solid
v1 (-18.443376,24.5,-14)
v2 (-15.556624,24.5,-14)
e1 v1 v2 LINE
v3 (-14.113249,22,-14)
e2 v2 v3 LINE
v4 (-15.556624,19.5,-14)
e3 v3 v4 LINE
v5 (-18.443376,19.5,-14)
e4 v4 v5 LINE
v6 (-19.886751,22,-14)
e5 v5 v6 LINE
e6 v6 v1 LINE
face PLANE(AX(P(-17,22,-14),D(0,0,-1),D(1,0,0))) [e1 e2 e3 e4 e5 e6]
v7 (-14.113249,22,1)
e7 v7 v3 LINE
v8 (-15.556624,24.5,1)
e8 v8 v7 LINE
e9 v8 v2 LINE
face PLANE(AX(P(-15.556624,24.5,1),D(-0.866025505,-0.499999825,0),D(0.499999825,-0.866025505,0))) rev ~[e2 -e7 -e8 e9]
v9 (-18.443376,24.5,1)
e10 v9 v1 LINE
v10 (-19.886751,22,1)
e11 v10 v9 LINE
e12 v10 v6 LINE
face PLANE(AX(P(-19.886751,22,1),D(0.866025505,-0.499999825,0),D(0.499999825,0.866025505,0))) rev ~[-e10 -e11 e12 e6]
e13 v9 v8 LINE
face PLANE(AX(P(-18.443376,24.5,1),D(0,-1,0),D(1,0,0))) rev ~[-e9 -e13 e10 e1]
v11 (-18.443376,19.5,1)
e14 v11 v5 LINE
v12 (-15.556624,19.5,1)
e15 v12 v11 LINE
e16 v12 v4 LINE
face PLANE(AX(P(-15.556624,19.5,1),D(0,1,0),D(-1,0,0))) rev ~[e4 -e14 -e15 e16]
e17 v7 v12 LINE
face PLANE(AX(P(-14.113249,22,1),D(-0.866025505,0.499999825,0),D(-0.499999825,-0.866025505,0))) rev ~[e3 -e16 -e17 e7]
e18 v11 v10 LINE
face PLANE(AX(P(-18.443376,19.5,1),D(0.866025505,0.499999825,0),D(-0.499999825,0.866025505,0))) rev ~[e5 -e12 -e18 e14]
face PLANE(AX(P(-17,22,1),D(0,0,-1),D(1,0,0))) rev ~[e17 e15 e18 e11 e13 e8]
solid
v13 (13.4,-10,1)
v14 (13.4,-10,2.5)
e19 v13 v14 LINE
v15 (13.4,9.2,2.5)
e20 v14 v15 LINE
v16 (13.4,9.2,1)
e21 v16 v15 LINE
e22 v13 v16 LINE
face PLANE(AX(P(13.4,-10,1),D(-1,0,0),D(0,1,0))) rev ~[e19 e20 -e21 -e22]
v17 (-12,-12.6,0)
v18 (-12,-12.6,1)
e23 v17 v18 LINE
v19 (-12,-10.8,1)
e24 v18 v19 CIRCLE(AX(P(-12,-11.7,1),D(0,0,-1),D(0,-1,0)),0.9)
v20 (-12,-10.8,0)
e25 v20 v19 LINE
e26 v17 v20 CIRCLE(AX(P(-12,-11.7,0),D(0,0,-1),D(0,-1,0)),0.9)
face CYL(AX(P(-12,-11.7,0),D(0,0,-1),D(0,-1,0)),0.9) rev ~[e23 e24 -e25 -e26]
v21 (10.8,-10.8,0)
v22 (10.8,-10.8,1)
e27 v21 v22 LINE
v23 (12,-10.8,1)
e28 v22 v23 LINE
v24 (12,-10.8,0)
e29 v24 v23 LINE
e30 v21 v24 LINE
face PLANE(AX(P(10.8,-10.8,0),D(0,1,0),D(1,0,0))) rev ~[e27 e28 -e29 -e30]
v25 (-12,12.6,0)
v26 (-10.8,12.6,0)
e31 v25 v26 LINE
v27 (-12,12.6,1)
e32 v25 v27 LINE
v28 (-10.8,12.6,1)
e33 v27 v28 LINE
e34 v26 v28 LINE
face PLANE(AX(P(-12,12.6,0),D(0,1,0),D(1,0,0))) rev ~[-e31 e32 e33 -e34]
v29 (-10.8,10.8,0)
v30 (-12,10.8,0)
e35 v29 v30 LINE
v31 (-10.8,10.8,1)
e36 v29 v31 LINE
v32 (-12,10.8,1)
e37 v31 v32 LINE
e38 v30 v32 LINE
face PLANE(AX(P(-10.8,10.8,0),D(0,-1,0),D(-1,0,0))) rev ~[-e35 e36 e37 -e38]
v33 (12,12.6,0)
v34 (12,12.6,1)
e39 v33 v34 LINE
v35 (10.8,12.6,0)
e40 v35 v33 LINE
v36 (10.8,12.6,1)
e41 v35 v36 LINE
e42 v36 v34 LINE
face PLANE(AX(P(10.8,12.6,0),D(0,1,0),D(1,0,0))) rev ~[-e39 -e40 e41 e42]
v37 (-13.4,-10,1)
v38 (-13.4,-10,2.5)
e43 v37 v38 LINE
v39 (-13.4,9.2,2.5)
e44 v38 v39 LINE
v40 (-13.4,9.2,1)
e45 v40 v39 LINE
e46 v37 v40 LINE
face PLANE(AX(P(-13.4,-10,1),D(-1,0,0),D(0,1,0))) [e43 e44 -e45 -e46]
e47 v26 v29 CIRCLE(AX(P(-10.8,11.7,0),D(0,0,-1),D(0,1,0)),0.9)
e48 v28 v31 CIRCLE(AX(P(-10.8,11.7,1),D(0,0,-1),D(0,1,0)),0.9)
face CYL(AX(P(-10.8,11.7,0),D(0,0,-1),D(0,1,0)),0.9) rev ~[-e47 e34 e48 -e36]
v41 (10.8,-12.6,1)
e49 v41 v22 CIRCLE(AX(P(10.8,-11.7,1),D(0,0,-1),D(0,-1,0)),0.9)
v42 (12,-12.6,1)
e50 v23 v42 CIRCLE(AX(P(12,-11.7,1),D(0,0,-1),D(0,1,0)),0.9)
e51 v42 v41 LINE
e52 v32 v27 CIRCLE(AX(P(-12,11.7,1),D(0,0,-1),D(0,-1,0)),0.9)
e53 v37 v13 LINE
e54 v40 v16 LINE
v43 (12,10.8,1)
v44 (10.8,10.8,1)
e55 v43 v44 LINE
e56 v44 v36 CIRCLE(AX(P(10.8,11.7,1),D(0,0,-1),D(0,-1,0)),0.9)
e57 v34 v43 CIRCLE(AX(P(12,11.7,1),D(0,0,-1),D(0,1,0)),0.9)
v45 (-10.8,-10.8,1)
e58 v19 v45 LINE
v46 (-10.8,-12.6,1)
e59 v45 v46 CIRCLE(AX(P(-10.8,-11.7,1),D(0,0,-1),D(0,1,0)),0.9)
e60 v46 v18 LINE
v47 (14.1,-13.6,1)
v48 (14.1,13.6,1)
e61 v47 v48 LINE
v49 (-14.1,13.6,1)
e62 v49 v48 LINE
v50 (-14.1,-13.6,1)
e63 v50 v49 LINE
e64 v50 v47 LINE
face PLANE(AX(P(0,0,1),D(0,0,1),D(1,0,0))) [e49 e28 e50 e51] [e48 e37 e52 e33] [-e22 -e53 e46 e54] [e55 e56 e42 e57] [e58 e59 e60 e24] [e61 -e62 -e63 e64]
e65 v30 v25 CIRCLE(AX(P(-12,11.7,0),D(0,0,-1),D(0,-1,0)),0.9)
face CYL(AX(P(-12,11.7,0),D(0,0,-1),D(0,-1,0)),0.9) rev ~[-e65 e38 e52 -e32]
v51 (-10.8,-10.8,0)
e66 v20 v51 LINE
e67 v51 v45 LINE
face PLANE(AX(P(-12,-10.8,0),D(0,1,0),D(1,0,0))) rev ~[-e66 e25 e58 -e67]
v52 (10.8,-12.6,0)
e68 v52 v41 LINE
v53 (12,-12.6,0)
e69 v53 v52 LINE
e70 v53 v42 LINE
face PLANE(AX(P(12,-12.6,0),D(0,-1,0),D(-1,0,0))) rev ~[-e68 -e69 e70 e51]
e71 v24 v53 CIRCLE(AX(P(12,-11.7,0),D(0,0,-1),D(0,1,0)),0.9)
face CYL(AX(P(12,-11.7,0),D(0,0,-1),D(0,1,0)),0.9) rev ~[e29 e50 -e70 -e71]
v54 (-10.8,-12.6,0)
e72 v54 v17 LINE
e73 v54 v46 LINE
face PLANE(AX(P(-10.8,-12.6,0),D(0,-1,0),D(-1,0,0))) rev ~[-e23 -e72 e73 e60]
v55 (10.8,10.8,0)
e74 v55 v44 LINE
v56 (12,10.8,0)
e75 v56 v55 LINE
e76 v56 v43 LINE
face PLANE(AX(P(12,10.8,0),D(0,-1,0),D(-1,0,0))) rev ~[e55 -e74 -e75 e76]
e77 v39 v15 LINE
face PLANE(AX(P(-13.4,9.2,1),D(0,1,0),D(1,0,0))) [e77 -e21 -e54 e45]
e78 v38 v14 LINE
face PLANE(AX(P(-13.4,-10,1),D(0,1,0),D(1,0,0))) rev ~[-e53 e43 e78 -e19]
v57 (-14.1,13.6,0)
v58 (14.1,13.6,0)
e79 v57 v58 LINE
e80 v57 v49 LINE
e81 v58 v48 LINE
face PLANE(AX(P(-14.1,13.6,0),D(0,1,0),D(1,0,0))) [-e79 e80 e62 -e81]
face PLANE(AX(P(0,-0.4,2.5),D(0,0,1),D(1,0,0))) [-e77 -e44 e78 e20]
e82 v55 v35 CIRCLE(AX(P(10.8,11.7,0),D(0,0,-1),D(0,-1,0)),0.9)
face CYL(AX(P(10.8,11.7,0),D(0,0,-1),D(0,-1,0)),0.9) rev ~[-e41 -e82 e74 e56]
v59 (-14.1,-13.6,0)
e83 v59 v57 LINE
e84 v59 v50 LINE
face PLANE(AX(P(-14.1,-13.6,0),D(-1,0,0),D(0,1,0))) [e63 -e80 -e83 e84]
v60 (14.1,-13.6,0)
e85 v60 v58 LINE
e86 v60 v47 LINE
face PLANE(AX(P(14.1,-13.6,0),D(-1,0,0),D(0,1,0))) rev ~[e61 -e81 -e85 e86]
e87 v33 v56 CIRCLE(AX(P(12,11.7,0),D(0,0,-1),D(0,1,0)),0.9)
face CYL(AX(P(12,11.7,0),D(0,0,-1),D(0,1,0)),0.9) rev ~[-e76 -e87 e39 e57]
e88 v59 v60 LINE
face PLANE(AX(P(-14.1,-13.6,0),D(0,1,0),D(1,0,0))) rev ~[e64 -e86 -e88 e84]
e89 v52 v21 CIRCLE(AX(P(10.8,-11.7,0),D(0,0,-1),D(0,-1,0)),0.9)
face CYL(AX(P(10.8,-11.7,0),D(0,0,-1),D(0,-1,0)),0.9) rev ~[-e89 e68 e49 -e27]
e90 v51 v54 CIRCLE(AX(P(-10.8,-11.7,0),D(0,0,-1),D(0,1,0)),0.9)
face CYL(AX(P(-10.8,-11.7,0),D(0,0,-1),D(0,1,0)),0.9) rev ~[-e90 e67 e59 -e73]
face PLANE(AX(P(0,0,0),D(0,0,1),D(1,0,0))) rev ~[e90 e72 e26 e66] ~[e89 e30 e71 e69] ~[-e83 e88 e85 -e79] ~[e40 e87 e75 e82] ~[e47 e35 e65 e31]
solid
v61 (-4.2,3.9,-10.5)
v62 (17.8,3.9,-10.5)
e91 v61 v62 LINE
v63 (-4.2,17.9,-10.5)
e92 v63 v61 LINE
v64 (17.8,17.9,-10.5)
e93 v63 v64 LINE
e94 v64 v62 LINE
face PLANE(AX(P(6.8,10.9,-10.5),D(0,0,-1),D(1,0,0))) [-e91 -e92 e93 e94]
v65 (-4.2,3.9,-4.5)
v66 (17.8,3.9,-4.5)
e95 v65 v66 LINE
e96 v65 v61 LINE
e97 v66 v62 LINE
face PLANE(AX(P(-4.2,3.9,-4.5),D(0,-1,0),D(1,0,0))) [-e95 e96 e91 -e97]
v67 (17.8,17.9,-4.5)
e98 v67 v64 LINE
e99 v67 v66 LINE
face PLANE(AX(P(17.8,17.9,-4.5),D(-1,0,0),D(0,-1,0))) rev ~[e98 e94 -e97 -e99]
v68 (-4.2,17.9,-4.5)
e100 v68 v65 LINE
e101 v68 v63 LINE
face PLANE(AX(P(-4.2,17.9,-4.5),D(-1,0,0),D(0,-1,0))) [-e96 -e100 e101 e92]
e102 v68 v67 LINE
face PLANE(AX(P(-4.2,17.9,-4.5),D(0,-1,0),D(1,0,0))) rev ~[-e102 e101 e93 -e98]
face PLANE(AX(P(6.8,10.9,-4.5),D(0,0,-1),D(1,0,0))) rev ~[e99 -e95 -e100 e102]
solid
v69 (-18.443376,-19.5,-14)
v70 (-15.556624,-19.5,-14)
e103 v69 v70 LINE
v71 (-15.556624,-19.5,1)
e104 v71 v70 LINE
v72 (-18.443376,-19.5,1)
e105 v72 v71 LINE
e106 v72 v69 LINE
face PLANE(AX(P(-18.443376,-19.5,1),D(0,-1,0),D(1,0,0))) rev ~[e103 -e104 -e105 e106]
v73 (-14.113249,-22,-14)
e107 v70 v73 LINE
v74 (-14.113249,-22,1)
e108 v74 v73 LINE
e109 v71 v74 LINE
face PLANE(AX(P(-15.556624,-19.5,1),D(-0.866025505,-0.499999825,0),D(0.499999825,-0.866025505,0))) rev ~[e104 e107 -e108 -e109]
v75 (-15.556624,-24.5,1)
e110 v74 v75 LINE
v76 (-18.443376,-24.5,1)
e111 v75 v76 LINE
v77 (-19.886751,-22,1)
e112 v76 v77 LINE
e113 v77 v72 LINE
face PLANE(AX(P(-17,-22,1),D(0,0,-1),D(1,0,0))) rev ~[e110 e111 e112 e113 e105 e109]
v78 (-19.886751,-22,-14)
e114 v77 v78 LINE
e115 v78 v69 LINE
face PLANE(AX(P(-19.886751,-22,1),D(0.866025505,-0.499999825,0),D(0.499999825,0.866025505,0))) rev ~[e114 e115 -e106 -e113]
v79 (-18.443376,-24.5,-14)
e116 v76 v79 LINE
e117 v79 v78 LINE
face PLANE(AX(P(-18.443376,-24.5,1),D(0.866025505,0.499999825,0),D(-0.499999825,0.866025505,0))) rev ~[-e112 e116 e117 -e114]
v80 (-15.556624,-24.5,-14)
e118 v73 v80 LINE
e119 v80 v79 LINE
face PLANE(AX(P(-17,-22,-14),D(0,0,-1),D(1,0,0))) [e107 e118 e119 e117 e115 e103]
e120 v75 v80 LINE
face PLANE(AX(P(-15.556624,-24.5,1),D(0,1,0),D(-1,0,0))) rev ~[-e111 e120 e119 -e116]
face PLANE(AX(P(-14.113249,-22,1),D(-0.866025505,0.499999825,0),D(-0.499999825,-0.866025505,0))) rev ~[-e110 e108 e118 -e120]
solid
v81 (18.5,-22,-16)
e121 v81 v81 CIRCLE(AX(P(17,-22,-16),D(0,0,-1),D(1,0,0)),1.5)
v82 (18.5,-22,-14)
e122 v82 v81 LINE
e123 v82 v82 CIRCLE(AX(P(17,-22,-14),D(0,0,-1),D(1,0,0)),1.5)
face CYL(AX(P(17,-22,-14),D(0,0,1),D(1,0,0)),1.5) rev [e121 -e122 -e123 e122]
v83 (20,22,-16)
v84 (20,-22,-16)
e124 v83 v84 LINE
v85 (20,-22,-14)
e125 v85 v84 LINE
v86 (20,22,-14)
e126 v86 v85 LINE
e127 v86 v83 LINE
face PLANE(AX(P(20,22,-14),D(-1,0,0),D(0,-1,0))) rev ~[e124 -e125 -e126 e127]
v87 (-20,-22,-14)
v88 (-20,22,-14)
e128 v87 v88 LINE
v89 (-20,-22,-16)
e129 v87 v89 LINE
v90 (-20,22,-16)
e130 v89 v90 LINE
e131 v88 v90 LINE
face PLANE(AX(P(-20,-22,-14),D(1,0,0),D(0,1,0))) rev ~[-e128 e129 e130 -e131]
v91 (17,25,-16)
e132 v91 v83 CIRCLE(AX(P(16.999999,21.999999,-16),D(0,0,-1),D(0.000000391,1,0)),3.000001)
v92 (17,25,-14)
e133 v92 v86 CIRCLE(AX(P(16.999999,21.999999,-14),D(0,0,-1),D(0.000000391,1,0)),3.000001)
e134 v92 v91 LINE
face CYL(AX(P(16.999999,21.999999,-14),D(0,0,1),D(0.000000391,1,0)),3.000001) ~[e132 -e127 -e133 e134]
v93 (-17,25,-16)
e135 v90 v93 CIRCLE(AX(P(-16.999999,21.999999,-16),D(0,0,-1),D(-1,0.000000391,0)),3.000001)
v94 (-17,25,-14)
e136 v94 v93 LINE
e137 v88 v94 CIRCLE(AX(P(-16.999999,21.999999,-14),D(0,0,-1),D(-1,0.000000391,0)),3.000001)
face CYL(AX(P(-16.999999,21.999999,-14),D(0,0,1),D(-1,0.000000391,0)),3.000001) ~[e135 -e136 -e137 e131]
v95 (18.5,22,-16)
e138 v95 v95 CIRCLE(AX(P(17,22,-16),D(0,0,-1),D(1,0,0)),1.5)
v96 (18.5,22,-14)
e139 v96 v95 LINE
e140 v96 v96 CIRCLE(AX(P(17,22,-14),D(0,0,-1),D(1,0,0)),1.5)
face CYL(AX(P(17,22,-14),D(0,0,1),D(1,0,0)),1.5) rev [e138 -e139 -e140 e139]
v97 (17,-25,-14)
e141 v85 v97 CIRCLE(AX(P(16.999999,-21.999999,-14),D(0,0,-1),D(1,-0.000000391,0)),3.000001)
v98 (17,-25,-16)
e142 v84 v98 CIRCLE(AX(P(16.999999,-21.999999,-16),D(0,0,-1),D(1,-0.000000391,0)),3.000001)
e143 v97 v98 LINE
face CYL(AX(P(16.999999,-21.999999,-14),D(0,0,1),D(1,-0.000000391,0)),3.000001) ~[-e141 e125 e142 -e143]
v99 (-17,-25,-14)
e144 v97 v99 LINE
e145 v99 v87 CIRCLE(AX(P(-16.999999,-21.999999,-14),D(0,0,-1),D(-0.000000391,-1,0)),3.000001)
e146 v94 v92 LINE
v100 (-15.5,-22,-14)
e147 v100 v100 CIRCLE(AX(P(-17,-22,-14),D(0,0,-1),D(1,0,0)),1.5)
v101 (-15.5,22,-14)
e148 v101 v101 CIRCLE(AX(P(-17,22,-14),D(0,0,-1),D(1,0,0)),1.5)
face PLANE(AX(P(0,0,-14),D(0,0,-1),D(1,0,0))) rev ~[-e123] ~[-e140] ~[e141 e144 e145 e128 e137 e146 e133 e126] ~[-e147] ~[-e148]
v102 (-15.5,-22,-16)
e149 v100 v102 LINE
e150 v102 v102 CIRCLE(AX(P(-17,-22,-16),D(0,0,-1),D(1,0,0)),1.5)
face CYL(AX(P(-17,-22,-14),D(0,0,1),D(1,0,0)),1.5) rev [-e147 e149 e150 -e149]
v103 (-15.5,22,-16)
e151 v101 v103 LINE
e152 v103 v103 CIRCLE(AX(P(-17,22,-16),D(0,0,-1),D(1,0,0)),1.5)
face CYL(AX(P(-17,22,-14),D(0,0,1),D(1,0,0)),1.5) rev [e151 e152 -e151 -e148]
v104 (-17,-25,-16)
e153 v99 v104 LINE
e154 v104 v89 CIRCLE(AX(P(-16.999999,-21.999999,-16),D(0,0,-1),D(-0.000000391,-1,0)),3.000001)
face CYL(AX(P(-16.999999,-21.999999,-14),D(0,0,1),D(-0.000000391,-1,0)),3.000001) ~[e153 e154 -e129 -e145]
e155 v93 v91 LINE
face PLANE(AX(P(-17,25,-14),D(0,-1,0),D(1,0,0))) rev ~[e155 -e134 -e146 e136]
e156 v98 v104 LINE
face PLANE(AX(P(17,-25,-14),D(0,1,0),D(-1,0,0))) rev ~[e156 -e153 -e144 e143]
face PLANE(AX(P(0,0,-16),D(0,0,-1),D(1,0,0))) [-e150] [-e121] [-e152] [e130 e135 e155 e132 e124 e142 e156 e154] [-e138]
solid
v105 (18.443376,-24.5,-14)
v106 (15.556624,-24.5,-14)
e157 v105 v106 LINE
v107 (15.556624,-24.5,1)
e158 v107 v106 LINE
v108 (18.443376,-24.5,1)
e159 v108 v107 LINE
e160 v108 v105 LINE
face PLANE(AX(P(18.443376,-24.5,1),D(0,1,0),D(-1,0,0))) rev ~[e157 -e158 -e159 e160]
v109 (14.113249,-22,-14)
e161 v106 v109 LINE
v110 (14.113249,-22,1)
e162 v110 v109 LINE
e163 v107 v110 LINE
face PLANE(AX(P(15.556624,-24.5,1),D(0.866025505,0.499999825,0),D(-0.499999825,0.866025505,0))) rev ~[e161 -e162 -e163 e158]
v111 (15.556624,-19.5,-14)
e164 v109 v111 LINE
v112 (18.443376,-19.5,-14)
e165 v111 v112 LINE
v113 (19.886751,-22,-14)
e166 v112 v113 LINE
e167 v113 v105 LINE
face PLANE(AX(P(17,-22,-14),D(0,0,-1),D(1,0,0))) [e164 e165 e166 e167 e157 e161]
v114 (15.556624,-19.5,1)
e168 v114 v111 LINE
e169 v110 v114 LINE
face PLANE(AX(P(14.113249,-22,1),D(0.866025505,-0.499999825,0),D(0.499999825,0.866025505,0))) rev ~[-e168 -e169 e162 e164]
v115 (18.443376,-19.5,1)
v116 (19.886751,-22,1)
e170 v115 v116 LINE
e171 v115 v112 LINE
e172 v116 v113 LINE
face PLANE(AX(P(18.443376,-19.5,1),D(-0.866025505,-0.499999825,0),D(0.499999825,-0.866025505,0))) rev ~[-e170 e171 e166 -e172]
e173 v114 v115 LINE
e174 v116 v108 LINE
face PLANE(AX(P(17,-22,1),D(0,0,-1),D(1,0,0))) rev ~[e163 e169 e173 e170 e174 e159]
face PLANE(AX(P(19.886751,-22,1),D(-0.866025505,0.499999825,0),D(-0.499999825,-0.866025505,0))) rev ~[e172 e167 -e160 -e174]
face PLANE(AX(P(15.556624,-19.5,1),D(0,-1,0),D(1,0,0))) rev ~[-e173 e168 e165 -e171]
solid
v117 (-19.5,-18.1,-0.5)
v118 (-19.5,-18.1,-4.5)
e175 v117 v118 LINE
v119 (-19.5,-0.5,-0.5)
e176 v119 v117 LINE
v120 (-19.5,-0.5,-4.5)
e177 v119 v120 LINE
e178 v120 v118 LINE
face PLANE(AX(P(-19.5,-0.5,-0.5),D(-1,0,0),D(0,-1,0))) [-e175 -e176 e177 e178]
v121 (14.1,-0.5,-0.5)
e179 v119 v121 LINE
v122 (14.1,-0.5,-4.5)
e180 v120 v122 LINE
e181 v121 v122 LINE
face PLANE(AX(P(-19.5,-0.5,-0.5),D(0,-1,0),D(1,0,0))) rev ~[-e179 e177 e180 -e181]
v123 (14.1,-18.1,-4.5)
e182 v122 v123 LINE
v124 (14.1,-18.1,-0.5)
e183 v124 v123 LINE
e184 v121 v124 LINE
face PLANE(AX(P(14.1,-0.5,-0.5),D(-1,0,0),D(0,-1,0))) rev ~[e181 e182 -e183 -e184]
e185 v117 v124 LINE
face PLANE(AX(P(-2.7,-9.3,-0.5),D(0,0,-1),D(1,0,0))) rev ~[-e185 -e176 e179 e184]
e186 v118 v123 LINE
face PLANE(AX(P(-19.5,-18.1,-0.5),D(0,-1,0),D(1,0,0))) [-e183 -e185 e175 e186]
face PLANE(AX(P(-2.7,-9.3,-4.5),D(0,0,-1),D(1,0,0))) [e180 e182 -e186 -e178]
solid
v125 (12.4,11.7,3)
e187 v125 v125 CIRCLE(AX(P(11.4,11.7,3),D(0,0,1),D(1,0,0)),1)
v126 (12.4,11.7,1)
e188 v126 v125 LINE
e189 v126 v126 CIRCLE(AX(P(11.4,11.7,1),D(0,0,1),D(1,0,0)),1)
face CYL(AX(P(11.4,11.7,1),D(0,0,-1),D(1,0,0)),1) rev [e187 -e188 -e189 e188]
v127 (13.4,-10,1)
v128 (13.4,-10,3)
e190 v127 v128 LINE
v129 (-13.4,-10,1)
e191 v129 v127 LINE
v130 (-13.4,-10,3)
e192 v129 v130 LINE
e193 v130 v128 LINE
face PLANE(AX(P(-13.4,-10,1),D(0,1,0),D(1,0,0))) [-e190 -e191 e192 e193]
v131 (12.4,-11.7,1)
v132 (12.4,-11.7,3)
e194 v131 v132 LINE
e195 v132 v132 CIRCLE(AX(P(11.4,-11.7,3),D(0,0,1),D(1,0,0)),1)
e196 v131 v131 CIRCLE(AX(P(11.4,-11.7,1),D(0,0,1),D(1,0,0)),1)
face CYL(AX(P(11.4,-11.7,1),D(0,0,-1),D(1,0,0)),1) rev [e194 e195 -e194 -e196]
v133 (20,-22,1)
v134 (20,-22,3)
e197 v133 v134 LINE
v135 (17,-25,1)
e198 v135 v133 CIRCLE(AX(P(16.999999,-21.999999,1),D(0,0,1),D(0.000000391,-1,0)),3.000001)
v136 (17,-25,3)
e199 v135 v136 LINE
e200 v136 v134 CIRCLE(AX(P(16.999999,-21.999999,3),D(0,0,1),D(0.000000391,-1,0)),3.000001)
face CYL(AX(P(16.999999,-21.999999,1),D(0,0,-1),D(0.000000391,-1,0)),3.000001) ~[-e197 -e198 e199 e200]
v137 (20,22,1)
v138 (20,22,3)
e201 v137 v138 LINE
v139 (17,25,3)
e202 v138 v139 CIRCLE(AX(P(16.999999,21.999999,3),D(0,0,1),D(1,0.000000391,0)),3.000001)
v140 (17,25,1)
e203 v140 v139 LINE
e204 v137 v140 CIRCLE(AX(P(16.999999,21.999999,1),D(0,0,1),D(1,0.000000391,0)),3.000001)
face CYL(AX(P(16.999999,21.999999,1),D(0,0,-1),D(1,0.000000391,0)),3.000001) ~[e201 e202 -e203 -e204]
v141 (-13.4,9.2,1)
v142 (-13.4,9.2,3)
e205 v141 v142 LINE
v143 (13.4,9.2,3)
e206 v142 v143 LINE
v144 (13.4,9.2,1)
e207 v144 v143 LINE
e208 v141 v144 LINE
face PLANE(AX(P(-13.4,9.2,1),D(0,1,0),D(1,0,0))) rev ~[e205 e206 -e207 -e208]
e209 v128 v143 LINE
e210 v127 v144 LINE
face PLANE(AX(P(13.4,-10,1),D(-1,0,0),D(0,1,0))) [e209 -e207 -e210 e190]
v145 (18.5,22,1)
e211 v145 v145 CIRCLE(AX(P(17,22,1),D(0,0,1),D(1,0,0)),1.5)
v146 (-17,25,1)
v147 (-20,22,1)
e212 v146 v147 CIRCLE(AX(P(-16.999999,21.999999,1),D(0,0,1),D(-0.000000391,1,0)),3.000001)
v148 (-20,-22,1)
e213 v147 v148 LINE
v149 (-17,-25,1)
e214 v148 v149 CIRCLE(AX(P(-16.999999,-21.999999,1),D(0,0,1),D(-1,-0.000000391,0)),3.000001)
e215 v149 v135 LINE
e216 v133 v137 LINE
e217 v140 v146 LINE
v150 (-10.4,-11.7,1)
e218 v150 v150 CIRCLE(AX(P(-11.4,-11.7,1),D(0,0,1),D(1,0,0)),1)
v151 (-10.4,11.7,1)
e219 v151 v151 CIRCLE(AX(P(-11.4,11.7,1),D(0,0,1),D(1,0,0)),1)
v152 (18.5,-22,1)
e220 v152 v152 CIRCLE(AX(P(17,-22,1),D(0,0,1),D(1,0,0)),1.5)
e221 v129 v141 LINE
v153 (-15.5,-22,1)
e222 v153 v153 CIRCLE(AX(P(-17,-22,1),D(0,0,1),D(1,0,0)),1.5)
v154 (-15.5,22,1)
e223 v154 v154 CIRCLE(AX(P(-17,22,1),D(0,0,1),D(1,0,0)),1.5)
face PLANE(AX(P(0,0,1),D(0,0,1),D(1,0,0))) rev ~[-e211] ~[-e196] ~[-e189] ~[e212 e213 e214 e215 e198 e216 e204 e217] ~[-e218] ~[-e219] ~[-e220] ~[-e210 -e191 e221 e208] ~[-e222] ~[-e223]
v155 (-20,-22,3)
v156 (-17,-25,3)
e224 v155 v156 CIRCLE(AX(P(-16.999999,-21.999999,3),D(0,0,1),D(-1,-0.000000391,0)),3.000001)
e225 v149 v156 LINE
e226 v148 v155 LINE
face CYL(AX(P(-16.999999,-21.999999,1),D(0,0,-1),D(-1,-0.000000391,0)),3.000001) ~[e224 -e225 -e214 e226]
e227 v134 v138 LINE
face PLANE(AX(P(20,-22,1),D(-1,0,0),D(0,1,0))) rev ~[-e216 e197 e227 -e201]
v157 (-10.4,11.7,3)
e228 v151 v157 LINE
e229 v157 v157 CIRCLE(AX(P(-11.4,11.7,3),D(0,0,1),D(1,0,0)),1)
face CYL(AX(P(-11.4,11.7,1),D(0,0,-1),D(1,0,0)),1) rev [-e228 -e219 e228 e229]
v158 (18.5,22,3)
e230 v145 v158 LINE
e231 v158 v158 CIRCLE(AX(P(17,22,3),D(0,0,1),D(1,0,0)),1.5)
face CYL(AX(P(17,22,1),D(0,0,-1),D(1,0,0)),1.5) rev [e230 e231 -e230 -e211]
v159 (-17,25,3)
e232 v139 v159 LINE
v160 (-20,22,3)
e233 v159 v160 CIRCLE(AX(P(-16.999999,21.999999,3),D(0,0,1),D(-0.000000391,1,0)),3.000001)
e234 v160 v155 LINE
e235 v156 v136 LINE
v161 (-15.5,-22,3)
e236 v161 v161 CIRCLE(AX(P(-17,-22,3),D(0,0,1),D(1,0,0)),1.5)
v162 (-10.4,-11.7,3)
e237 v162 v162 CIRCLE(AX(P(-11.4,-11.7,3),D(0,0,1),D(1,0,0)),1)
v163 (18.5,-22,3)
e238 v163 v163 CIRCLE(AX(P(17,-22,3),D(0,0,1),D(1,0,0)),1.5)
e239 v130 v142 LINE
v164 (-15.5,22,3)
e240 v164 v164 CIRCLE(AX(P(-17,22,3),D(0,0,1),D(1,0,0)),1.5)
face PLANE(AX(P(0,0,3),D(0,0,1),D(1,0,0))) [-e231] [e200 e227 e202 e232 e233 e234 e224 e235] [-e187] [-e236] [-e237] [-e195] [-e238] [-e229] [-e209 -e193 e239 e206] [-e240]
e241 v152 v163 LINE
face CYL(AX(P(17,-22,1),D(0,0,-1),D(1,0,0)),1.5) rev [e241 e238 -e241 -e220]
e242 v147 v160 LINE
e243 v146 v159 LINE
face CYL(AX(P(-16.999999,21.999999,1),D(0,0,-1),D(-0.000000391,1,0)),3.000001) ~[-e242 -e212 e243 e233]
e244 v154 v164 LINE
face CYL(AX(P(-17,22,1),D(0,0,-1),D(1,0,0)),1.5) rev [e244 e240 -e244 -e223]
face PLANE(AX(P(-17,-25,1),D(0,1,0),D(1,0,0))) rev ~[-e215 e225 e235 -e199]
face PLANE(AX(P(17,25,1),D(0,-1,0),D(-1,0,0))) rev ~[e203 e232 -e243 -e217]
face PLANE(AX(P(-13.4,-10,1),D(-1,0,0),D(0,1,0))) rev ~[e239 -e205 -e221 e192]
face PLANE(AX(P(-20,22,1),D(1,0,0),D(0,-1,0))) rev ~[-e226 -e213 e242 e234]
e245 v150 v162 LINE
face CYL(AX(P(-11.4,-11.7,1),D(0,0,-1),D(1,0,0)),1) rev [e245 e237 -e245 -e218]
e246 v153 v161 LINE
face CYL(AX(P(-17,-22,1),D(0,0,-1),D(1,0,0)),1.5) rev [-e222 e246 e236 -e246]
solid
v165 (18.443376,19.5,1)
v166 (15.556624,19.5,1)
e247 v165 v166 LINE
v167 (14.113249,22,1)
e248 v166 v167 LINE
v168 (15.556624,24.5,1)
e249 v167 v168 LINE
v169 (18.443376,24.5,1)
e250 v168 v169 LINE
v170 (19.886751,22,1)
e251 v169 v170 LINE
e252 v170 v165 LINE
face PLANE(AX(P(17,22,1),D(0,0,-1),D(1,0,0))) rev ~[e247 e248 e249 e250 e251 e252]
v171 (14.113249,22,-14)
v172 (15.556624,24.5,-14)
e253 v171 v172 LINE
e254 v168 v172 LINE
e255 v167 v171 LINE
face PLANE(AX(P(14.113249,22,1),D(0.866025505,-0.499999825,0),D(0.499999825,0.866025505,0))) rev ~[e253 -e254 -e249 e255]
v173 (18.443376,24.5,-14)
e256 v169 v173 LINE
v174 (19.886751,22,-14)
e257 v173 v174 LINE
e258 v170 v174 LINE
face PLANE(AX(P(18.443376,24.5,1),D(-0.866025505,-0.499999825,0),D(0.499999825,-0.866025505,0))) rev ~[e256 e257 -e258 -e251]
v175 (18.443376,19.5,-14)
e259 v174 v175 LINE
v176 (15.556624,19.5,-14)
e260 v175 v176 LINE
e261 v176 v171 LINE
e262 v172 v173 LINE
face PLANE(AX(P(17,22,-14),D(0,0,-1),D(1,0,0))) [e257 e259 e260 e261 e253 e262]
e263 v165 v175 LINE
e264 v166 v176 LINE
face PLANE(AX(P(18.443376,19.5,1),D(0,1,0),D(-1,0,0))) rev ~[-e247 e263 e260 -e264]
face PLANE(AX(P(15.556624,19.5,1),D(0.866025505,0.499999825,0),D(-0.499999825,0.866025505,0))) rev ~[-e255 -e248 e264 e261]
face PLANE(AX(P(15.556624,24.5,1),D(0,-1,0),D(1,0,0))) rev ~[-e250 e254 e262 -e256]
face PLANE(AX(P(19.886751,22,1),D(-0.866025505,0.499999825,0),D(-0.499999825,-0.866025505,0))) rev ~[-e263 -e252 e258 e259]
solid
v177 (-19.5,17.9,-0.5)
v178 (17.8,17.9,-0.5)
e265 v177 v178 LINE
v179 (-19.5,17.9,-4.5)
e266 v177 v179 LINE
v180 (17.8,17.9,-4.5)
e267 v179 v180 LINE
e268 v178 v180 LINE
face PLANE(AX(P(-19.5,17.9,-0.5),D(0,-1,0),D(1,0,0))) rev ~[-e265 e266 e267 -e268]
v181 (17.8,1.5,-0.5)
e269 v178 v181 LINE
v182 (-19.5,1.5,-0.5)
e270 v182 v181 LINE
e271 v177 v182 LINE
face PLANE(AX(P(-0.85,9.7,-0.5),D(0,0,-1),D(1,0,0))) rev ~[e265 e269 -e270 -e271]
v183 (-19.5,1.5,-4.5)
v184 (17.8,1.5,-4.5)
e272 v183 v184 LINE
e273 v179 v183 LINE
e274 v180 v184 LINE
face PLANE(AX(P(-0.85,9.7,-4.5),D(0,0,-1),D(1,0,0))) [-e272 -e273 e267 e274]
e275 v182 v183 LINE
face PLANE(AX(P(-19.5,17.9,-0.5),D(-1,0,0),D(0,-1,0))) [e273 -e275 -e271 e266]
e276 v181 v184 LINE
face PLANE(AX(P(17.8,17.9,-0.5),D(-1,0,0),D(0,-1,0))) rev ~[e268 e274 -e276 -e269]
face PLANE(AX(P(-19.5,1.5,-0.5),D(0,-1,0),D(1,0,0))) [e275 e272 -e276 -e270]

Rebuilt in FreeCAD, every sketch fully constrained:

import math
import FreeCAD as App
import Part
import Sketcher

V = App.Vector
Q = App.Units.Quantity


def add_polygon(sketch, points):
    """Adds a closed chain of lines whose ends are joined by coincident constraints."""
    first, n = sketch.GeometryCount, len(points)
    for a, b in zip(points, points[1:] + points[:1]):
        sketch.addGeometry(Part.LineSegment(App.Vector(*a, 0), App.Vector(*b, 0)), False)
    for i in range(n):
        sketch.addConstraint(Sketcher.Constraint("Coincident", first + i, 2, first + (i + 1) % n, 1))

doc = App.newDocument("Part")
params = doc.addObject("Spreadsheet::Sheet", "Params")
for row, (alias, value) in enumerate([
    ("sketch1_radius", "0.9 mm"),
    ("sketch1_width", "28.2 mm"),
    ("sketch1_width2", "1.2 mm"),
    ("sketch1_height", "27.2 mm"),
    ("pad1_length", "1 mm"),
    ("sketch2_width", "26.8 mm"),
    ("sketch2_height", "19.2 mm"),
    ("pad2_length", "1.5 mm"),
    ("sketch3_diameter", "3 mm"),
    ("sketch3_diameter2", "2 mm"),
    ("sketch3_radius", "3.000001 mm"),
    ("sketch3_width", "34 mm"),
    ("sketch3_height", "44 mm"),
    ("pad3_length", "2 mm"),
    ("sketch4_width", "33.6 mm"),
    ("sketch4_width2", "37.3 mm"),
    ("sketch4_height", "17.6 mm"),
    ("sketch4_height2", "16.4 mm"),
    ("pad4_length", "4 mm"),
    ("sketch5_width", "22 mm"),
    ("sketch5_height", "14 mm"),
    ("pad5_length", "6 mm"),
    ("pad6_length", "15 mm"),
    ("sketch7_diameter", "3 mm"),
    ("sketch7_radius", "3.000001 mm"),
    ("sketch7_width", "34 mm"),
    ("sketch7_height", "44 mm"),
    ("pad7_length", "2 mm"),
], start=1):
    params.set(f"A{row}", alias)
    params.set(f"B{row}", "=" + value)
    params.setAlias(f"B{row}", alias)

body = doc.addObject("PartDesign::Body", "Body")

# Sketch on XY plane
sketch1 = body.newObject("Sketcher::SketchObject", "Sketch")
sketch1.AttachmentSupport = (doc.getObject("XY_Plane"), [""])
sketch1.MapMode = "FlatFace"
add_polygon(sketch1, [(-14.1, 13.6), (-14.1, -13.6), (14.1, -13.6), (14.1, 13.6)])  # lines 0-3
sketch1.addGeometry(Part.ArcOfCircle(Part.Circle(V(-10.8, -11.7, 0), V(0, 0, 1), 0.9), math.radians(-90), math.radians(90)), False)  # 4
sketch1.addGeometry(Part.LineSegment(V(-10.8, -12.6, 0), V(-12, -12.6, 0)), False)  # 5
sketch1.addGeometry(Part.ArcOfCircle(Part.Circle(V(-12, -11.7, 0), V(0, 0, 1), 0.9), math.radians(90), math.radians(270)), False)  # 6
sketch1.addGeometry(Part.LineSegment(V(-12, -10.8, 0), V(-10.8, -10.8, 0)), False)  # 7
sketch1.addGeometry(Part.ArcOfCircle(Part.Circle(V(10.8, -11.7, 0), V(0, 0, 1), 0.9), math.radians(90), math.radians(270)), False)  # 8
sketch1.addGeometry(Part.LineSegment(V(10.8, -10.8, 0), V(12, -10.8, 0)), False)  # 9
sketch1.addGeometry(Part.ArcOfCircle(Part.Circle(V(12, -11.7, 0), V(0, 0, 1), 0.9), math.radians(-90), math.radians(90)), False)  # 10
sketch1.addGeometry(Part.LineSegment(V(12, -12.6, 0), V(10.8, -12.6, 0)), False)  # 11
sketch1.addGeometry(Part.LineSegment(V(-10.8, 10.8, 0), V(-12, 10.8, 0)), False)  # 12
sketch1.addGeometry(Part.ArcOfCircle(Part.Circle(V(-12, 11.7, 0), V(0, 0, 1), 0.9), math.radians(90), math.radians(270)), False)  # 13
sketch1.addGeometry(Part.LineSegment(V(-12, 12.6, 0), V(-10.8, 12.6, 0)), False)  # 14
sketch1.addGeometry(Part.ArcOfCircle(Part.Circle(V(-10.8, 11.7, 0), V(0, 0, 1), 0.9), math.radians(-90), math.radians(90)), False)  # 15
sketch1.addGeometry(Part.LineSegment(V(10.8, 12.6, 0), V(12, 12.6, 0)), False)  # 16
sketch1.addGeometry(Part.ArcOfCircle(Part.Circle(V(12, 11.7, 0), V(0, 0, 1), 0.9), math.radians(-90), math.radians(90)), False)  # 17
sketch1.addGeometry(Part.LineSegment(V(12, 10.8, 0), V(10.8, 10.8, 0)), False)  # 18
sketch1.addGeometry(Part.ArcOfCircle(Part.Circle(V(10.8, 11.7, 0), V(0, 0, 1), 0.9), math.radians(90), math.radians(270)), False)  # 19
sketch1.addConstraint(Sketcher.Constraint("Tangent", 4, 1, 5, 1))
sketch1.addConstraint(Sketcher.Constraint("Tangent", 5, 2, 6, 2))
sketch1.addConstraint(Sketcher.Constraint("Tangent", 6, 1, 7, 1))
sketch1.addConstraint(Sketcher.Constraint("Tangent", 7, 2, 4, 2))
sketch1.addConstraint(Sketcher.Constraint("Tangent", 8, 1, 9, 1))
sketch1.addConstraint(Sketcher.Constraint("Tangent", 9, 2, 10, 2))
sketch1.addConstraint(Sketcher.Constraint("Tangent", 10, 1, 11, 1))
sketch1.addConstraint(Sketcher.Constraint("Tangent", 11, 2, 8, 2))
sketch1.addConstraint(Sketcher.Constraint("Tangent", 12, 2, 13, 2))
sketch1.addConstraint(Sketcher.Constraint("Tangent", 13, 1, 14, 1))
sketch1.addConstraint(Sketcher.Constraint("Tangent", 14, 2, 15, 2))
sketch1.addConstraint(Sketcher.Constraint("Tangent", 15, 1, 12, 1))
sketch1.addConstraint(Sketcher.Constraint("Tangent", 16, 2, 17, 2))
sketch1.addConstraint(Sketcher.Constraint("Tangent", 17, 1, 18, 1))
sketch1.addConstraint(Sketcher.Constraint("Tangent", 18, 2, 19, 2))
sketch1.addConstraint(Sketcher.Constraint("Tangent", 19, 1, 16, 1))
sketch1.addConstraint(Sketcher.Constraint("Vertical", 0))
sketch1.addConstraint(Sketcher.Constraint("Horizontal", 1))
sketch1.addConstraint(Sketcher.Constraint("Vertical", 2))
sketch1.addConstraint(Sketcher.Constraint("Horizontal", 3))
sketch1.addConstraint(Sketcher.Constraint("Horizontal", 5))
sketch1.addConstraint(Sketcher.Constraint("Horizontal", 7))
sketch1.addConstraint(Sketcher.Constraint("Horizontal", 9))
sketch1.addConstraint(Sketcher.Constraint("Horizontal", 11))
sketch1.addConstraint(Sketcher.Constraint("Horizontal", 12))
sketch1.addConstraint(Sketcher.Constraint("Horizontal", 14))
sketch1.addConstraint(Sketcher.Constraint("Horizontal", 16))
sketch1.addConstraint(Sketcher.Constraint("Horizontal", 18))
sketch1.addConstraint(Sketcher.Constraint("Equal", 6, 8))
sketch1.addConstraint(Sketcher.Constraint("Equal", 10, 13))
sketch1.addConstraint(Sketcher.Constraint("Equal", 15, 17))
sketch1.addConstraint(Sketcher.Constraint("Symmetric", 10, 3, 13, 3, -1, 1))
sketch1.addConstraint(Sketcher.Constraint("Symmetric", 6, 3, 17, 3, -1, 1))
sketch1.addConstraint(Sketcher.Constraint("Symmetric", 0, 2, 2, 2, -1, 1))
sketch1.addConstraint(Sketcher.Constraint("Symmetric", 4, 3, 8, 3, -2))
sketch1.addConstraint(Sketcher.Constraint("Vertical", 6, 3, 13, 3))
sketch1.addConstraint(Sketcher.Constraint("Vertical", 4, 3, 15, 3))
sketch1.addConstraint(Sketcher.Constraint("Vertical", 8, 3, 19, 3))
sketch1.addConstraint(Sketcher.Constraint("Radius", 4, Q("0.9 mm")))
sketch1.addConstraint(Sketcher.Constraint("DistanceX", 1, 1, 1, 2, Q("28.2 mm")))
sketch1.addConstraint(Sketcher.Constraint("DistanceX", 5, 2, 5, 1, Q("1.2 mm")))
sketch1.addConstraint(Sketcher.Constraint("DistanceY", 0, 2, 0, 1, Q("27.2 mm")))
sketch1.addConstraint(Sketcher.Constraint("DistanceX", 6, 3, -1, 1, Q("12 mm")))
sketch1.addConstraint(Sketcher.Constraint("DistanceY", 0, 2, 4, 1, Q("1 mm")))
sketch1.setExpression("Constraints[42]", "Params.sketch1_radius")
sketch1.setExpression("Constraints[43]", "Params.sketch1_width")
sketch1.setExpression("Constraints[44]", "Params.sketch1_width2")
sketch1.setExpression("Constraints[45]", "Params.sketch1_height")
pad1 = body.newObject("PartDesign::Pad", "Pad")
pad1.Profile = sketch1
pad1.setExpression("Length", "Params.pad1_length")

# Sketch on XY plane
sketch2 = body.newObject("Sketcher::SketchObject", "Sketch001")
sketch2.AttachmentSupport = (doc.getObject("XY_Plane"), [""])
sketch2.MapMode = "FlatFace"
sketch2.AttachmentOffset = App.Placement(V(0, 0, 1), App.Rotation())
add_polygon(sketch2, [(-13.4, 9.2), (-13.4, -10), (13.4, -10), (13.4, 9.2)])  # lines 0-3
sketch2.addConstraint(Sketcher.Constraint("Vertical", 0))
sketch2.addConstraint(Sketcher.Constraint("Horizontal", 1))
sketch2.addConstraint(Sketcher.Constraint("Vertical", 2))
sketch2.addConstraint(Sketcher.Constraint("Horizontal", 3))
sketch2.addConstraint(Sketcher.Constraint("DistanceX", 1, 1, 1, 2, Q("26.8 mm")))
sketch2.addConstraint(Sketcher.Constraint("DistanceY", 0, 2, 0, 1, Q("19.2 mm")))
sketch2.addConstraint(Sketcher.Constraint("DistanceY", 0, 2, -1, 1, Q("10 mm")))
sketch2.addConstraint(Sketcher.Constraint("DistanceX", 0, 2, -1, 1, Q("13.4 mm")))
sketch2.setExpression("Constraints[8]", "Params.sketch2_width")
sketch2.setExpression("Constraints[9]", "Params.sketch2_height")
pad2 = body.newObject("PartDesign::Pad", "Pad001")
pad2.Profile = sketch2
pad2.setExpression("Length", "Params.pad2_length")
body2 = doc.addObject("PartDesign::Body", "Body001")

# Sketch on XY plane
sketch3 = body2.newObject("Sketcher::SketchObject", "Sketch002")
sketch3.AttachmentSupport = (doc.getObject("XY_Plane001"), [""])
sketch3.MapMode = "FlatFace"
sketch3.AttachmentOffset = App.Placement(V(0, 0, 1), App.Rotation())
sketch3.addGeometry(Part.ArcOfCircle(Part.Circle(V(16.999999, 21.999999, 0), V(0, 0, 1), 3.000001), math.radians(0.000022), math.radians(89.999978)), False)  # 0
sketch3.addGeometry(Part.LineSegment(V(17, 25, 0), V(-17, 25, 0)), False)  # 1
sketch3.addGeometry(Part.ArcOfCircle(Part.Circle(V(-16.999999, 21.999999, 0), V(0, 0, 1), 3.000001), math.radians(90.000022), math.radians(179.999978)), False)  # 2
sketch3.addGeometry(Part.LineSegment(V(-20, 22, 0), V(-20, -22, 0)), False)  # 3
sketch3.addGeometry(Part.ArcOfCircle(Part.Circle(V(-16.999999, -21.999999, 0), V(0, 0, 1), 3.000001), math.radians(-179.999978), math.radians(-90.000022)), False)  # 4
sketch3.addGeometry(Part.LineSegment(V(-17, -25, 0), V(17, -25, 0)), False)  # 5
sketch3.addGeometry(Part.ArcOfCircle(Part.Circle(V(16.999999, -21.999999, 0), V(0, 0, 1), 3.000001), math.radians(-89.999978), math.radians(-0.000022)), False)  # 6
sketch3.addGeometry(Part.LineSegment(V(20, -22, 0), V(20, 22, 0)), False)  # 7
sketch3.addGeometry(Part.Circle(V(-17, -22, 0), V(0, 0, 1), 1.5), False)  # 8
sketch3.addGeometry(Part.Circle(V(-11.4, -11.7, 0), V(0, 0, 1), 1), False)  # 9
sketch3.addGeometry(Part.Circle(V(17, -22, 0), V(0, 0, 1), 1.5), False)  # 10
add_polygon(sketch3, [(13.4, -10), (-13.4, -10), (-13.4, 9.2), (13.4, 9.2)])  # lines 11-14
sketch3.addGeometry(Part.Circle(V(11.4, -11.7, 0), V(0, 0, 1), 1), False)  # 15
sketch3.addGeometry(Part.Circle(V(-11.4, 11.7, 0), V(0, 0, 1), 1), False)  # 16
sketch3.addGeometry(Part.Circle(V(-17, 22, 0), V(0, 0, 1), 1.5), False)  # 17
sketch3.addGeometry(Part.Circle(V(11.4, 11.7, 0), V(0, 0, 1), 1), False)  # 18
sketch3.addGeometry(Part.Circle(V(17, 22, 0), V(0, 0, 1), 1.5), False)  # 19
sketch3.addConstraint(Sketcher.Constraint("Tangent", 0, 2, 1, 1))
sketch3.addConstraint(Sketcher.Constraint("Tangent", 1, 2, 2, 1))
sketch3.addConstraint(Sketcher.Constraint("Tangent", 2, 2, 3, 1))
sketch3.addConstraint(Sketcher.Constraint("Tangent", 3, 2, 4, 1))
sketch3.addConstraint(Sketcher.Constraint("Tangent", 4, 2, 5, 1))
sketch3.addConstraint(Sketcher.Constraint("Tangent", 5, 2, 6, 1))
sketch3.addConstraint(Sketcher.Constraint("Tangent", 6, 2, 7, 1))
sketch3.addConstraint(Sketcher.Constraint("Tangent", 7, 2, 0, 1))
sketch3.addConstraint(Sketcher.Constraint("Horizontal", 1))
sketch3.addConstraint(Sketcher.Constraint("Vertical", 3))
sketch3.addConstraint(Sketcher.Constraint("Horizontal", 5))
sketch3.addConstraint(Sketcher.Constraint("Vertical", 7))
sketch3.addConstraint(Sketcher.Constraint("Horizontal", 11))
sketch3.addConstraint(Sketcher.Constraint("Vertical", 12))
sketch3.addConstraint(Sketcher.Constraint("Horizontal", 13))
sketch3.addConstraint(Sketcher.Constraint("Vertical", 14))
sketch3.addConstraint(Sketcher.Constraint("Coincident", 8, 3, 4, 3))
sketch3.addConstraint(Sketcher.Constraint("Coincident", 10, 3, 6, 3))
sketch3.addConstraint(Sketcher.Constraint("Coincident", 17, 3, 2, 3))
sketch3.addConstraint(Sketcher.Constraint("Coincident", 19, 3, 0, 3))
sketch3.addConstraint(Sketcher.Constraint("Equal", 0, 2))
sketch3.addConstraint(Sketcher.Constraint("Equal", 2, 4))
sketch3.addConstraint(Sketcher.Constraint("Equal", 4, 6))
sketch3.addConstraint(Sketcher.Constraint("Equal", 8, 10))
sketch3.addConstraint(Sketcher.Constraint("Equal", 9, 15))
sketch3.addConstraint(Sketcher.Constraint("Equal", 15, 16))
sketch3.addConstraint(Sketcher.Constraint("Equal", 10, 17))
sketch3.addConstraint(Sketcher.Constraint("Equal", 16, 18))
sketch3.addConstraint(Sketcher.Constraint("Equal", 17, 19))
sketch3.addConstraint(Sketcher.Constraint("Symmetric", 0, 3, 4, 3, -1, 1))
sketch3.addConstraint(Sketcher.Constraint("Symmetric", 15, 3, 16, 3, -1, 1))
sketch3.addConstraint(Sketcher.Constraint("Symmetric", 9, 3, 18, 3, -1, 1))
sketch3.addConstraint(Sketcher.Constraint("Symmetric", 9, 3, 15, 3, -2))
sketch3.addConstraint(Sketcher.Constraint("Diameter", 8, Q("3 mm")))
sketch3.addConstraint(Sketcher.Constraint("Diameter", 9, Q("2 mm")))
sketch3.addConstraint(Sketcher.Constraint("Radius", 0, Q("3.000001 mm")))
sketch3.addConstraint(Sketcher.Constraint("DistanceX", 1, 2, 1, 1, Q("34 mm")))
sketch3.addConstraint(Sketcher.Constraint("DistanceY", 3, 2, 3, 1, Q("44 mm")))
sketch3.addConstraint(Sketcher.Constraint("DistanceX", 11, 2, 11, 1, Q("26.8 mm")))
sketch3.addConstraint(Sketcher.Constraint("DistanceY", 12, 1, 12, 2, Q("19.2 mm")))
sketch3.addConstraint(Sketcher.Constraint("DistanceY", 11, 2, -1, 1, Q("10 mm")))
sketch3.addConstraint(Sketcher.Constraint("DistanceX", 11, 2, 9, 3, Q("2 mm")))
sketch3.addConstraint(Sketcher.Constraint("DistanceX", 18, 3, 13, 2, Q("2 mm")))
sketch3.addConstraint(Sketcher.Constraint("DistanceY", 9, 3, -1, 1, Q("11.7 mm")))
sketch3.setExpression("Constraints[37]", "Params.sketch3_diameter")
sketch3.setExpression("Constraints[38]", "Params.sketch3_diameter2")
sketch3.setExpression("Constraints[39]", "Params.sketch3_radius")
sketch3.setExpression("Constraints[40]", "Params.sketch3_width")
sketch3.setExpression("Constraints[41]", "Params.sketch3_height")
pad3 = body2.newObject("PartDesign::Pad", "Pad002")
pad3.Profile = sketch3
pad3.setExpression("Length", "Params.pad3_length")
body3 = doc.addObject("PartDesign::Body", "Body002")
body3.AllowCompound = True

# Sketch on XY plane
sketch4 = body3.newObject("Sketcher::SketchObject", "Sketch003")
sketch4.AttachmentSupport = (doc.getObject("XY_Plane002"), [""])
sketch4.MapMode = "FlatFace"
sketch4.AttachmentOffset = App.Placement(V(0, 0, -0.5), App.Rotation())
add_polygon(sketch4, [(-19.5, -18.1), (-19.5, -0.5), (14.1, -0.5), (14.1, -18.1)])  # lines 0-3
add_polygon(sketch4, [(-19.5, 1.5), (-19.5, 17.9), (17.8, 17.9), (17.8, 1.5)])  # lines 4-7
sketch4.addConstraint(Sketcher.Constraint("Vertical", 0))
sketch4.addConstraint(Sketcher.Constraint("Horizontal", 1))
sketch4.addConstraint(Sketcher.Constraint("Vertical", 2))
sketch4.addConstraint(Sketcher.Constraint("Horizontal", 3))
sketch4.addConstraint(Sketcher.Constraint("Vertical", 4))
sketch4.addConstraint(Sketcher.Constraint("Horizontal", 5))
sketch4.addConstraint(Sketcher.Constraint("Vertical", 6))
sketch4.addConstraint(Sketcher.Constraint("Horizontal", 7))
sketch4.addConstraint(Sketcher.Constraint("Vertical", 3, 2, 4, 2))
sketch4.addConstraint(Sketcher.Constraint("DistanceX", 1, 1, 1, 2, Q("33.6 mm")))
sketch4.addConstraint(Sketcher.Constraint("DistanceX", 5, 1, 5, 2, Q("37.3 mm")))
sketch4.addConstraint(Sketcher.Constraint("DistanceY", 0, 1, 0, 2, Q("17.6 mm")))
sketch4.addConstraint(Sketcher.Constraint("DistanceY", 4, 1, 4, 2, Q("16.4 mm")))
sketch4.addConstraint(Sketcher.Constraint("DistanceY", 3, 2, 4, 2, Q("36 mm")))
sketch4.addConstraint(Sketcher.Constraint("DistanceX", 0, 2, -1, 1, Q("19.5 mm")))
sketch4.addConstraint(Sketcher.Constraint("DistanceY", 0, 2, -1, 1, Q("0.5 mm")))
sketch4.setExpression("Constraints[17]", "Params.sketch4_width")
sketch4.setExpression("Constraints[18]", "Params.sketch4_width2")
sketch4.setExpression("Constraints[19]", "Params.sketch4_height")
sketch4.setExpression("Constraints[20]", "Params.sketch4_height2")
pad4 = body3.newObject("PartDesign::Pad", "Pad003")
pad4.Profile = sketch4
pad4.setExpression("Length", "Params.pad4_length")
pad4.Reversed = True
body4 = doc.addObject("PartDesign::Body", "Body003")

# Sketch on XY plane
sketch5 = body4.newObject("Sketcher::SketchObject", "Sketch004")
sketch5.AttachmentSupport = (doc.getObject("XY_Plane003"), [""])
sketch5.MapMode = "FlatFace"
sketch5.AttachmentOffset = App.Placement(V(0, 0, -4.5), App.Rotation())
add_polygon(sketch5, [(-4.2, 3.9), (-4.2, 17.9), (17.8, 17.9), (17.8, 3.9)])  # lines 0-3
sketch5.addConstraint(Sketcher.Constraint("Vertical", 0))
sketch5.addConstraint(Sketcher.Constraint("Horizontal", 1))
sketch5.addConstraint(Sketcher.Constraint("Vertical", 2))
sketch5.addConstraint(Sketcher.Constraint("Horizontal", 3))
sketch5.addConstraint(Sketcher.Constraint("DistanceX", 1, 1, 1, 2, Q("22 mm")))
sketch5.addConstraint(Sketcher.Constraint("DistanceY", 0, 1, 0, 2, Q("14 mm")))
sketch5.addConstraint(Sketcher.Constraint("DistanceX", 0, 2, -1, 1, Q("4.2 mm")))
sketch5.addConstraint(Sketcher.Constraint("DistanceY", -1, 1, 0, 2, Q("17.9 mm")))
sketch5.setExpression("Constraints[8]", "Params.sketch5_width")
sketch5.setExpression("Constraints[9]", "Params.sketch5_height")
pad5 = body4.newObject("PartDesign::Pad", "Pad004")
pad5.Profile = sketch5
pad5.setExpression("Length", "Params.pad5_length")
pad5.Reversed = True
body5 = doc.addObject("PartDesign::Body", "Body004")
body5.AllowCompound = True

# Sketch on XY plane
sketch6 = body5.newObject("Sketcher::SketchObject", "Sketch005")
sketch6.AttachmentSupport = (doc.getObject("XY_Plane004"), [""])
sketch6.MapMode = "FlatFace"
sketch6.AttachmentOffset = App.Placement(V(0, 0, 1), App.Rotation())
add_polygon(sketch6, [(-15.556624, -24.5), (-18.443376, -24.5), (-19.886751, -22), (-18.443376, -19.5), (-15.556624, -19.5), (-14.113249, -22)])  # lines 0-5
add_polygon(sketch6, [(18.443376, -19.5), (19.886751, -22), (18.443376, -24.5), (15.556624, -24.5), (14.113249, -22), (15.556624, -19.5)])  # lines 6-11
add_polygon(sketch6, [(-19.886751, 22), (-18.443376, 24.5), (-15.556624, 24.5), (-14.113249, 22), (-15.556624, 19.5), (-18.443376, 19.5)])  # lines 12-17
add_polygon(sketch6, [(15.556624, 19.5), (14.113249, 22), (15.556624, 24.5), (18.443376, 24.5), (19.886751, 22), (18.443376, 19.5)])  # lines 18-23
sketch6.addConstraint(Sketcher.Constraint("Horizontal", 0))
sketch6.addConstraint(Sketcher.Constraint("Horizontal", 3))
sketch6.addConstraint(Sketcher.Constraint("Horizontal", 8))
sketch6.addConstraint(Sketcher.Constraint("Horizontal", 11))
sketch6.addConstraint(Sketcher.Constraint("Horizontal", 13))
sketch6.addConstraint(Sketcher.Constraint("Horizontal", 16))
sketch6.addConstraint(Sketcher.Constraint("Horizontal", 20))
sketch6.addConstraint(Sketcher.Constraint("Horizontal", 23))
sketch6.addConstraint(Sketcher.Constraint("Symmetric", 7, 2, 12, 2, -1, 1))
sketch6.addConstraint(Sketcher.Constraint("Symmetric", 9, 2, 14, 2, -1, 1))
sketch6.addConstraint(Sketcher.Constraint("Symmetric", 10, 2, 15, 2, -1, 1))
sketch6.addConstraint(Sketcher.Constraint("Symmetric", 6, 2, 17, 2, -1, 1))
sketch6.addConstraint(Sketcher.Constraint("Symmetric", 4, 2, 18, 2, -1, 1))
sketch6.addConstraint(Sketcher.Constraint("Symmetric", 5, 2, 19, 2, -1, 1))
sketch6.addConstraint(Sketcher.Constraint("Symmetric", 1, 2, 21, 2, -1, 1))
sketch6.addConstraint(Sketcher.Constraint("Symmetric", 2, 2, 22, 2, -1, 1))
sketch6.addConstraint(Sketcher.Constraint("Symmetric", 1, 2, 6, 2, -2))
sketch6.addConstraint(Sketcher.Constraint("Symmetric", 0, 2, 7, 2, -2))
sketch6.addConstraint(Sketcher.Constraint("Symmetric", 4, 2, 9, 2, -2))
sketch6.addConstraint(Sketcher.Constraint("Symmetric", 3, 2, 10, 2, -2))
sketch6.addConstraint(Sketcher.Constraint("Parallel", 1, 4))
sketch6.addConstraint(Sketcher.Constraint("Parallel", 2, 5))
sketch6.addConstraint(Sketcher.Constraint("Parallel", 4, 6))
sketch6.addConstraint(Sketcher.Constraint("Parallel", 5, 7))
sketch6.addConstraint(Sketcher.Constraint("Parallel", 6, 9))
sketch6.addConstraint(Sketcher.Constraint("Parallel", 9, 14))
sketch6.addConstraint(Sketcher.Constraint("Parallel", 14, 17))
sketch6.addConstraint(Sketcher.Constraint("Parallel", 17, 18))
sketch6.addConstraint(Sketcher.Constraint("Parallel", 18, 21))
sketch6.addConstraint(Sketcher.Constraint("Horizontal", 1, 2, 4, 2))
sketch6.addConstraint(Sketcher.Constraint("Vertical", 0, 2, 2, 2))
sketch6.addConstraint(Sketcher.Constraint("Angle", 1, Q("119.999988 deg")))
sketch6.addConstraint(Sketcher.Constraint("DistanceY", 1, 2, -1, 1, Q("22 mm")))
sketch6.addConstraint(Sketcher.Constraint("DistanceY", 0, 2, 2, 2, Q("5 mm")))
sketch6.addConstraint(Sketcher.Constraint("DistanceX", 4, 2, 6, 2, Q("34 mm")))
sketch6.addConstraint(Sketcher.Constraint("DistanceX", 0, 2, 0, 1, Q("2.886752 mm")))
pad6 = body5.newObject("PartDesign::Pad", "Pad005")
pad6.Profile = sketch6
pad6.setExpression("Length", "Params.pad6_length")
pad6.Reversed = True
body6 = doc.addObject("PartDesign::Body", "Body005")

# Sketch on XY plane
sketch7 = body6.newObject("Sketcher::SketchObject", "Sketch006")
sketch7.AttachmentSupport = (doc.getObject("XY_Plane005"), [""])
sketch7.MapMode = "FlatFace"
sketch7.AttachmentOffset = App.Placement(V(0, 0, -14), App.Rotation())
sketch7.addGeometry(Part.ArcOfCircle(Part.Circle(V(16.999999, -21.999999, 0), V(0, 0, 1), 3.000001), math.radians(-89.999978), math.radians(-0.000022)), False)
sketch7.addGeometry(Part.LineSegment(V(17, -25, 0), V(-17, -25, 0)), False)
sketch7.addGeometry(Part.ArcOfCircle(Part.Circle(V(-16.999999, -21.999999, 0), V(0, 0, 1), 3.000001), math.radians(-179.999978), math.radians(-90.000022)), False)
sketch7.addGeometry(Part.LineSegment(V(-20, -22, 0), V(-20, 22, 0)), False)
sketch7.addGeometry(Part.ArcOfCircle(Part.Circle(V(-16.999999, 21.999999, 0), V(0, 0, 1), 3.000001), math.radians(90.000022), math.radians(179.999978)), False)
sketch7.addGeometry(Part.LineSegment(V(-17, 25, 0), V(17, 25, 0)), False)
sketch7.addGeometry(Part.ArcOfCircle(Part.Circle(V(16.999999, 21.999999, 0), V(0, 0, 1), 3.000001), math.radians(0.000022), math.radians(89.999978)), False)
sketch7.addGeometry(Part.LineSegment(V(20, 22, 0), V(20, -22, 0)), False)
sketch7.addGeometry(Part.Circle(V(-17, 22, 0), V(0, 0, 1), 1.5), False)
sketch7.addGeometry(Part.Circle(V(17, 22, 0), V(0, 0, 1), 1.5), False)
sketch7.addGeometry(Part.Circle(V(-17, -22, 0), V(0, 0, 1), 1.5), False)
sketch7.addGeometry(Part.Circle(V(17, -22, 0), V(0, 0, 1), 1.5), False)
sketch7.addConstraint(Sketcher.Constraint("Tangent", 0, 1, 1, 1))
sketch7.addConstraint(Sketcher.Constraint("Tangent", 1, 2, 2, 2))
sketch7.addConstraint(Sketcher.Constraint("Tangent", 2, 1, 3, 1))
sketch7.addConstraint(Sketcher.Constraint("Tangent", 3, 2, 4, 2))
sketch7.addConstraint(Sketcher.Constraint("Tangent", 4, 1, 5, 1))
sketch7.addConstraint(Sketcher.Constraint("Tangent", 5, 2, 6, 2))
sketch7.addConstraint(Sketcher.Constraint("Tangent", 6, 1, 7, 1))
sketch7.addConstraint(Sketcher.Constraint("Tangent", 7, 2, 0, 2))
sketch7.addConstraint(Sketcher.Constraint("Horizontal", 1))
sketch7.addConstraint(Sketcher.Constraint("Vertical", 3))
sketch7.addConstraint(Sketcher.Constraint("Horizontal", 5))
sketch7.addConstraint(Sketcher.Constraint("Vertical", 7))
sketch7.addConstraint(Sketcher.Constraint("Coincident", 8, 3, 4, 3))
sketch7.addConstraint(Sketcher.Constraint("Coincident", 9, 3, 6, 3))
sketch7.addConstraint(Sketcher.Constraint("Coincident", 10, 3, 2, 3))
sketch7.addConstraint(Sketcher.Constraint("Coincident", 11, 3, 0, 3))
sketch7.addConstraint(Sketcher.Constraint("Equal", 0, 2))
sketch7.addConstraint(Sketcher.Constraint("Equal", 2, 4))
sketch7.addConstraint(Sketcher.Constraint("Equal", 4, 6))
sketch7.addConstraint(Sketcher.Constraint("Equal", 8, 9))
sketch7.addConstraint(Sketcher.Constraint("Equal", 9, 10))
sketch7.addConstraint(Sketcher.Constraint("Equal", 10, 11))
sketch7.addConstraint(Sketcher.Constraint("Symmetric", 0, 3, 4, 3, -1, 1))
sketch7.addConstraint(Sketcher.Constraint("Diameter", 8, Q("3 mm")))
sketch7.addConstraint(Sketcher.Constraint("Radius", 0, Q("3.000001 mm")))
sketch7.addConstraint(Sketcher.Constraint("DistanceX", 1, 2, 1, 1, Q("34 mm")))
sketch7.addConstraint(Sketcher.Constraint("DistanceY", 3, 1, 3, 2, Q("44 mm")))
sketch7.setExpression("Constraints[23]", "Params.sketch7_diameter")
sketch7.setExpression("Constraints[24]", "Params.sketch7_radius")
sketch7.setExpression("Constraints[25]", "Params.sketch7_width")
sketch7.setExpression("Constraints[26]", "Params.sketch7_height")
pad7 = body6.newObject("PartDesign::Pad", "Pad006")
pad7.Profile = sketch7
pad7.setExpression("Length", "Params.pad7_length")
pad7.Reversed = True

doc.recompute()
